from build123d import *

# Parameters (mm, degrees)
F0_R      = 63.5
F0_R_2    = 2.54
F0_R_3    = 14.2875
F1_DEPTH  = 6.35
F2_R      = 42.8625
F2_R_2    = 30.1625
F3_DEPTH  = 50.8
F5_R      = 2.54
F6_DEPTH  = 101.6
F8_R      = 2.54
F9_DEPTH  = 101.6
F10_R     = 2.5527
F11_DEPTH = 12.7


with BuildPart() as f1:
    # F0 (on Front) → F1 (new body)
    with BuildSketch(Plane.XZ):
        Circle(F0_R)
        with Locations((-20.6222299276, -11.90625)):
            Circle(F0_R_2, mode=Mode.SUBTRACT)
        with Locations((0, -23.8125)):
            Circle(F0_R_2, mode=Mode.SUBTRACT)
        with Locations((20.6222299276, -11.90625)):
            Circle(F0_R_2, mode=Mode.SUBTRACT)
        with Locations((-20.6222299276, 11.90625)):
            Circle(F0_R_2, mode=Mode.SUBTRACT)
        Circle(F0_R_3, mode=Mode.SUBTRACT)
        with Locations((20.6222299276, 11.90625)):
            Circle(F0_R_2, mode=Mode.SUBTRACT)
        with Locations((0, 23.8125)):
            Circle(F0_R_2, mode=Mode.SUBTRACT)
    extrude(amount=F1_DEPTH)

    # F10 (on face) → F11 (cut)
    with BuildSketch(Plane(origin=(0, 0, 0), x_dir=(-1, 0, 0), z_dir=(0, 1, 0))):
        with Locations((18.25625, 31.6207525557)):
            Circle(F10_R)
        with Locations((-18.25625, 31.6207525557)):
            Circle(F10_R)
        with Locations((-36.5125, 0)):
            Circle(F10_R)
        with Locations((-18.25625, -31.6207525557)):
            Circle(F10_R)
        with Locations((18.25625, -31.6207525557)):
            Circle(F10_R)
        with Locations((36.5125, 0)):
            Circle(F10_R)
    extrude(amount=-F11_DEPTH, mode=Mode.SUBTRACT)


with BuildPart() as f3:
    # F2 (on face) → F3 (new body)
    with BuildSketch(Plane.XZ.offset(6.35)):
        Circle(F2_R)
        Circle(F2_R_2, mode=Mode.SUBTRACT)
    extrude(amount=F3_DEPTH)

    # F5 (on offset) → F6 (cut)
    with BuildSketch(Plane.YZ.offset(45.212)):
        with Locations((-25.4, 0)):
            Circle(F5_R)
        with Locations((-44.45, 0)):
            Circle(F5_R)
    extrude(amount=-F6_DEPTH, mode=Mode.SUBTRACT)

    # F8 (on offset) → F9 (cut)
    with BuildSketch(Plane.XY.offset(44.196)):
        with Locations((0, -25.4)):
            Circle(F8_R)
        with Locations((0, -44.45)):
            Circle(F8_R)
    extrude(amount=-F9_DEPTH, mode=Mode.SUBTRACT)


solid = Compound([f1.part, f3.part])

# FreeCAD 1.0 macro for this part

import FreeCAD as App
import Part
import Sketcher
Q = App.Units.Quantity

doc = App.newDocument("Part")
body = doc.addObject("PartDesign::Body", "Body")

# Sketch on XZ plane
sketch1 = body.newObject("Sketcher::SketchObject", "Sketch")
sketch1.AttachmentSupport = (doc.getObject("XZ_Plane"), [""])
sketch1.MapMode = "FlatFace"
sketch1.addGeometry([
    Part.Circle(App.Vector(0, 0, 0), App.Vector(0, 0, 1), 63.5),  # 0
    Part.Circle(App.Vector(-20.62223, -11.90625, 0), App.Vector(0, 0, 1), 2.54),  # 1
    Part.Circle(App.Vector(0, -23.8125, 0), App.Vector(0, 0, 1), 2.54),  # 2
    Part.Circle(App.Vector(20.62223, -11.90625, 0), App.Vector(0, 0, 1), 2.54),  # 3
    Part.Circle(App.Vector(-20.62223, 11.90625, 0), App.Vector(0, 0, 1), 2.54),  # 4
    Part.Circle(App.Vector(0, 0, 0), App.Vector(0, 0, 1), 14.2875),  # 5
    Part.Circle(App.Vector(20.62223, 11.90625, 0), App.Vector(0, 0, 1), 2.54),  # 6
    Part.Circle(App.Vector(0, 23.8125, 0), App.Vector(0, 0, 1), 2.54),  # 7
], False)
sketch1.addConstraint([
    Sketcher.Constraint("Coincident", 0, 3, -1, 1),
    Sketcher.Constraint("Coincident", 5, 3, -1, 1),
    Sketcher.Constraint("Equal", 1, 2),
    Sketcher.Constraint("Equal", 2, 3),
    Sketcher.Constraint("Equal", 3, 4),
    Sketcher.Constraint("Equal", 4, 6),
    Sketcher.Constraint("Equal", 6, 7),
    Sketcher.Constraint("Symmetric", 3, 3, 4, 3, -1, 1),
    Sketcher.Constraint("Symmetric", 1, 3, 6, 3, -1, 1),
    Sketcher.Constraint("Symmetric", 2, 3, 7, 3, -1, 1),
    Sketcher.Constraint("Symmetric", 1, 3, 3, 3, -2),
    Sketcher.Constraint("PointOnObject", 2, 3, -2),
    Sketcher.Constraint("Diameter", 0, Q("5 in")),
    Sketcher.Constraint("Diameter", 1, Q("0.2 in")),
    Sketcher.Constraint("Diameter", 5, Q("1.125 in")),
    Sketcher.Constraint("DistanceY", 1, 3, -1, 1, Q("0.46875 in")),
    Sketcher.Constraint("DistanceY", 2, 3, -1, 1, Q("0.9375 in")),
    Sketcher.Constraint("DistanceX", 1, 3, -1, 1, Q("20.62223 mm")),
])
pad1 = body.newObject("PartDesign::Pad", "Pad")
pad1.Profile = sketch1
pad1.Length = Q("0.25 in")

# Sketch on XZ plane
sketch2 = body.newObject("Sketcher::SketchObject", "Sketch001")
sketch2.AttachmentSupport = (doc.getObject("XZ_Plane"), [""])
sketch2.MapMode = "FlatFace"
sketch2.addGeometry([
    Part.Circle(App.Vector(-18.25625, 31.620753, 0), App.Vector(0, 0, 1), 2.5527),  # 0
    Part.Circle(App.Vector(18.25625, 31.620753, 0), App.Vector(0, 0, 1), 2.5527),  # 1
    Part.Circle(App.Vector(36.5125, 0, 0), App.Vector(0, 0, 1), 2.5527),  # 2
    Part.Circle(App.Vector(18.25625, -31.620753, 0), App.Vector(0, 0, 1), 2.5527),  # 3
    Part.Circle(App.Vector(-18.25625, -31.620753, 0), App.Vector(0, 0, 1), 2.5527),  # 4
    Part.Circle(App.Vector(-36.5125, 0, 0), App.Vector(0, 0, 1), 2.5527),  # 5
], False)
sketch2.addConstraint([
    Sketcher.Constraint("Equal", 0, 1),
    Sketcher.Constraint("Equal", 1, 2),
    Sketcher.Constraint("Equal", 2, 3),
    Sketcher.Constraint("Equal", 3, 4),
    Sketcher.Constraint("Equal", 4, 5),
    Sketcher.Constraint("Symmetric", 0, 3, 3, 3, -1, 1),
    Sketcher.Constraint("Symmetric", 1, 3, 4, 3, -1, 1),
    Sketcher.Constraint("Symmetric", 2, 3, 5, 3, -1, 1),
    Sketcher.Constraint("Symmetric", 0, 3, 1, 3, -2),
    Sketcher.Constraint("PointOnObject", 2, 3, -1),
    Sketcher.Constraint("Diameter", 0, Q("0.201 in")),
    Sketcher.Constraint("DistanceX", 0, 3, -1, 1, Q("0.71875 in")),
    Sketcher.Constraint("DistanceX", -1, 1, 2, 3, Q("1.4375 in")),
    Sketcher.Constraint("DistanceY", -1, 1, 0, 3, Q("31.620753 mm")),
])
pocket1 = body.newObject("PartDesign::Pocket", "Pocket")
pocket1.Profile = sketch2
pocket1.Length = Q("0.5 in")
pocket1.Reversed = True
body2 = doc.addObject("PartDesign::Body", "Body001")

# Sketch on XZ plane
sketch3 = body2.newObject("Sketcher::SketchObject", "Sketch002")
sketch3.AttachmentSupport = (doc.getObject("XZ_Plane001"), [""])
sketch3.MapMode = "FlatFace"
sketch3.AttachmentOffset = App.Placement(App.Vector(0, 0, 0.25 * 25.4), App.Rotation())
sketch3.addGeometry([
    Part.Circle(App.Vector(0, 0, 0), App.Vector(0, 0, 1), 42.8625),
    Part.Circle(App.Vector(0, 0, 0), App.Vector(0, 0, 1), 30.1625),
], False)
sketch3.addConstraint([
    Sketcher.Constraint("Coincident", 0, 3, -1, 1),
    Sketcher.Constraint("Coincident", 1, 3, -1, 1),
    Sketcher.Constraint("Diameter", 0, Q("3.375 in")),
    Sketcher.Constraint("Diameter", 1, Q("2.375 in")),
])
pad2 = body2.newObject("PartDesign::Pad", "Pad001")
pad2.Profile = sketch3
pad2.Length = Q("2 in")

# Sketch on YZ plane
sketch4 = body2.newObject("Sketcher::SketchObject", "Sketch003")
sketch4.AttachmentSupport = (doc.getObject("YZ_Plane001"), [""])
sketch4.MapMode = "FlatFace"
sketch4.AttachmentOffset = App.Placement(App.Vector(0, 0, 1.78 * 25.4), App.Rotation())
sketch4.addGeometry([
    Part.Circle(App.Vector(-25.4, 0, 0), App.Vector(0, 0, 1), 2.54),
    Part.Circle(App.Vector(-44.45, 0, 0), App.Vector(0, 0, 1), 2.54),
], False)
sketch4.addConstraint([
    Sketcher.Constraint("Equal", 0, 1),
    Sketcher.Constraint("PointOnObject", 0, 3, -1),
    Sketcher.Constraint("PointOnObject", 1, 3, -1),
    Sketcher.Constraint("Diameter", 0, Q("0.2 in")),
    Sketcher.Constraint("DistanceX", 0, 3, -1, 1, Q("1 in")),
    Sketcher.Constraint("DistanceX", 1, 3, -1, 1, Q("1.75 in")),
])
pocket2 = body2.newObject("PartDesign::Pocket", "Pocket001")
pocket2.Profile = sketch4
pocket2.Length = Q("4 in")

# Sketch on XY plane
sketch5 = body2.newObject("Sketcher::SketchObject", "Sketch004")
sketch5.AttachmentSupport = (doc.getObject("XY_Plane001"), [""])
sketch5.MapMode = "FlatFace"
sketch5.AttachmentOffset = App.Placement(App.Vector(0, 0, 1.74 * 25.4), App.Rotation())
sketch5.addGeometry([
    Part.Circle(App.Vector(0, -25.4, 0), App.Vector(0, 0, 1), 2.54),
    Part.Circle(App.Vector(0, -44.45, 0), App.Vector(0, 0, 1), 2.54),
], False)
sketch5.addConstraint([
    Sketcher.Constraint("Equal", 0, 1),
    Sketcher.Constraint("PointOnObject", 0, 3, -2),
    Sketcher.Constraint("PointOnObject", 1, 3, -2),
    Sketcher.Constraint("Diameter", 0, Q("0.2 in")),
    Sketcher.Constraint("DistanceY", 0, 3, -1, 1, Q("1 in")),
    Sketcher.Constraint("DistanceY", 1, 3, -1, 1, Q("1.75 in")),
])
pocket3 = body2.newObject("PartDesign::Pocket", "Pocket002")
pocket3.Profile = sketch5
pocket3.Length = Q("4 in")

doc.recompute()
